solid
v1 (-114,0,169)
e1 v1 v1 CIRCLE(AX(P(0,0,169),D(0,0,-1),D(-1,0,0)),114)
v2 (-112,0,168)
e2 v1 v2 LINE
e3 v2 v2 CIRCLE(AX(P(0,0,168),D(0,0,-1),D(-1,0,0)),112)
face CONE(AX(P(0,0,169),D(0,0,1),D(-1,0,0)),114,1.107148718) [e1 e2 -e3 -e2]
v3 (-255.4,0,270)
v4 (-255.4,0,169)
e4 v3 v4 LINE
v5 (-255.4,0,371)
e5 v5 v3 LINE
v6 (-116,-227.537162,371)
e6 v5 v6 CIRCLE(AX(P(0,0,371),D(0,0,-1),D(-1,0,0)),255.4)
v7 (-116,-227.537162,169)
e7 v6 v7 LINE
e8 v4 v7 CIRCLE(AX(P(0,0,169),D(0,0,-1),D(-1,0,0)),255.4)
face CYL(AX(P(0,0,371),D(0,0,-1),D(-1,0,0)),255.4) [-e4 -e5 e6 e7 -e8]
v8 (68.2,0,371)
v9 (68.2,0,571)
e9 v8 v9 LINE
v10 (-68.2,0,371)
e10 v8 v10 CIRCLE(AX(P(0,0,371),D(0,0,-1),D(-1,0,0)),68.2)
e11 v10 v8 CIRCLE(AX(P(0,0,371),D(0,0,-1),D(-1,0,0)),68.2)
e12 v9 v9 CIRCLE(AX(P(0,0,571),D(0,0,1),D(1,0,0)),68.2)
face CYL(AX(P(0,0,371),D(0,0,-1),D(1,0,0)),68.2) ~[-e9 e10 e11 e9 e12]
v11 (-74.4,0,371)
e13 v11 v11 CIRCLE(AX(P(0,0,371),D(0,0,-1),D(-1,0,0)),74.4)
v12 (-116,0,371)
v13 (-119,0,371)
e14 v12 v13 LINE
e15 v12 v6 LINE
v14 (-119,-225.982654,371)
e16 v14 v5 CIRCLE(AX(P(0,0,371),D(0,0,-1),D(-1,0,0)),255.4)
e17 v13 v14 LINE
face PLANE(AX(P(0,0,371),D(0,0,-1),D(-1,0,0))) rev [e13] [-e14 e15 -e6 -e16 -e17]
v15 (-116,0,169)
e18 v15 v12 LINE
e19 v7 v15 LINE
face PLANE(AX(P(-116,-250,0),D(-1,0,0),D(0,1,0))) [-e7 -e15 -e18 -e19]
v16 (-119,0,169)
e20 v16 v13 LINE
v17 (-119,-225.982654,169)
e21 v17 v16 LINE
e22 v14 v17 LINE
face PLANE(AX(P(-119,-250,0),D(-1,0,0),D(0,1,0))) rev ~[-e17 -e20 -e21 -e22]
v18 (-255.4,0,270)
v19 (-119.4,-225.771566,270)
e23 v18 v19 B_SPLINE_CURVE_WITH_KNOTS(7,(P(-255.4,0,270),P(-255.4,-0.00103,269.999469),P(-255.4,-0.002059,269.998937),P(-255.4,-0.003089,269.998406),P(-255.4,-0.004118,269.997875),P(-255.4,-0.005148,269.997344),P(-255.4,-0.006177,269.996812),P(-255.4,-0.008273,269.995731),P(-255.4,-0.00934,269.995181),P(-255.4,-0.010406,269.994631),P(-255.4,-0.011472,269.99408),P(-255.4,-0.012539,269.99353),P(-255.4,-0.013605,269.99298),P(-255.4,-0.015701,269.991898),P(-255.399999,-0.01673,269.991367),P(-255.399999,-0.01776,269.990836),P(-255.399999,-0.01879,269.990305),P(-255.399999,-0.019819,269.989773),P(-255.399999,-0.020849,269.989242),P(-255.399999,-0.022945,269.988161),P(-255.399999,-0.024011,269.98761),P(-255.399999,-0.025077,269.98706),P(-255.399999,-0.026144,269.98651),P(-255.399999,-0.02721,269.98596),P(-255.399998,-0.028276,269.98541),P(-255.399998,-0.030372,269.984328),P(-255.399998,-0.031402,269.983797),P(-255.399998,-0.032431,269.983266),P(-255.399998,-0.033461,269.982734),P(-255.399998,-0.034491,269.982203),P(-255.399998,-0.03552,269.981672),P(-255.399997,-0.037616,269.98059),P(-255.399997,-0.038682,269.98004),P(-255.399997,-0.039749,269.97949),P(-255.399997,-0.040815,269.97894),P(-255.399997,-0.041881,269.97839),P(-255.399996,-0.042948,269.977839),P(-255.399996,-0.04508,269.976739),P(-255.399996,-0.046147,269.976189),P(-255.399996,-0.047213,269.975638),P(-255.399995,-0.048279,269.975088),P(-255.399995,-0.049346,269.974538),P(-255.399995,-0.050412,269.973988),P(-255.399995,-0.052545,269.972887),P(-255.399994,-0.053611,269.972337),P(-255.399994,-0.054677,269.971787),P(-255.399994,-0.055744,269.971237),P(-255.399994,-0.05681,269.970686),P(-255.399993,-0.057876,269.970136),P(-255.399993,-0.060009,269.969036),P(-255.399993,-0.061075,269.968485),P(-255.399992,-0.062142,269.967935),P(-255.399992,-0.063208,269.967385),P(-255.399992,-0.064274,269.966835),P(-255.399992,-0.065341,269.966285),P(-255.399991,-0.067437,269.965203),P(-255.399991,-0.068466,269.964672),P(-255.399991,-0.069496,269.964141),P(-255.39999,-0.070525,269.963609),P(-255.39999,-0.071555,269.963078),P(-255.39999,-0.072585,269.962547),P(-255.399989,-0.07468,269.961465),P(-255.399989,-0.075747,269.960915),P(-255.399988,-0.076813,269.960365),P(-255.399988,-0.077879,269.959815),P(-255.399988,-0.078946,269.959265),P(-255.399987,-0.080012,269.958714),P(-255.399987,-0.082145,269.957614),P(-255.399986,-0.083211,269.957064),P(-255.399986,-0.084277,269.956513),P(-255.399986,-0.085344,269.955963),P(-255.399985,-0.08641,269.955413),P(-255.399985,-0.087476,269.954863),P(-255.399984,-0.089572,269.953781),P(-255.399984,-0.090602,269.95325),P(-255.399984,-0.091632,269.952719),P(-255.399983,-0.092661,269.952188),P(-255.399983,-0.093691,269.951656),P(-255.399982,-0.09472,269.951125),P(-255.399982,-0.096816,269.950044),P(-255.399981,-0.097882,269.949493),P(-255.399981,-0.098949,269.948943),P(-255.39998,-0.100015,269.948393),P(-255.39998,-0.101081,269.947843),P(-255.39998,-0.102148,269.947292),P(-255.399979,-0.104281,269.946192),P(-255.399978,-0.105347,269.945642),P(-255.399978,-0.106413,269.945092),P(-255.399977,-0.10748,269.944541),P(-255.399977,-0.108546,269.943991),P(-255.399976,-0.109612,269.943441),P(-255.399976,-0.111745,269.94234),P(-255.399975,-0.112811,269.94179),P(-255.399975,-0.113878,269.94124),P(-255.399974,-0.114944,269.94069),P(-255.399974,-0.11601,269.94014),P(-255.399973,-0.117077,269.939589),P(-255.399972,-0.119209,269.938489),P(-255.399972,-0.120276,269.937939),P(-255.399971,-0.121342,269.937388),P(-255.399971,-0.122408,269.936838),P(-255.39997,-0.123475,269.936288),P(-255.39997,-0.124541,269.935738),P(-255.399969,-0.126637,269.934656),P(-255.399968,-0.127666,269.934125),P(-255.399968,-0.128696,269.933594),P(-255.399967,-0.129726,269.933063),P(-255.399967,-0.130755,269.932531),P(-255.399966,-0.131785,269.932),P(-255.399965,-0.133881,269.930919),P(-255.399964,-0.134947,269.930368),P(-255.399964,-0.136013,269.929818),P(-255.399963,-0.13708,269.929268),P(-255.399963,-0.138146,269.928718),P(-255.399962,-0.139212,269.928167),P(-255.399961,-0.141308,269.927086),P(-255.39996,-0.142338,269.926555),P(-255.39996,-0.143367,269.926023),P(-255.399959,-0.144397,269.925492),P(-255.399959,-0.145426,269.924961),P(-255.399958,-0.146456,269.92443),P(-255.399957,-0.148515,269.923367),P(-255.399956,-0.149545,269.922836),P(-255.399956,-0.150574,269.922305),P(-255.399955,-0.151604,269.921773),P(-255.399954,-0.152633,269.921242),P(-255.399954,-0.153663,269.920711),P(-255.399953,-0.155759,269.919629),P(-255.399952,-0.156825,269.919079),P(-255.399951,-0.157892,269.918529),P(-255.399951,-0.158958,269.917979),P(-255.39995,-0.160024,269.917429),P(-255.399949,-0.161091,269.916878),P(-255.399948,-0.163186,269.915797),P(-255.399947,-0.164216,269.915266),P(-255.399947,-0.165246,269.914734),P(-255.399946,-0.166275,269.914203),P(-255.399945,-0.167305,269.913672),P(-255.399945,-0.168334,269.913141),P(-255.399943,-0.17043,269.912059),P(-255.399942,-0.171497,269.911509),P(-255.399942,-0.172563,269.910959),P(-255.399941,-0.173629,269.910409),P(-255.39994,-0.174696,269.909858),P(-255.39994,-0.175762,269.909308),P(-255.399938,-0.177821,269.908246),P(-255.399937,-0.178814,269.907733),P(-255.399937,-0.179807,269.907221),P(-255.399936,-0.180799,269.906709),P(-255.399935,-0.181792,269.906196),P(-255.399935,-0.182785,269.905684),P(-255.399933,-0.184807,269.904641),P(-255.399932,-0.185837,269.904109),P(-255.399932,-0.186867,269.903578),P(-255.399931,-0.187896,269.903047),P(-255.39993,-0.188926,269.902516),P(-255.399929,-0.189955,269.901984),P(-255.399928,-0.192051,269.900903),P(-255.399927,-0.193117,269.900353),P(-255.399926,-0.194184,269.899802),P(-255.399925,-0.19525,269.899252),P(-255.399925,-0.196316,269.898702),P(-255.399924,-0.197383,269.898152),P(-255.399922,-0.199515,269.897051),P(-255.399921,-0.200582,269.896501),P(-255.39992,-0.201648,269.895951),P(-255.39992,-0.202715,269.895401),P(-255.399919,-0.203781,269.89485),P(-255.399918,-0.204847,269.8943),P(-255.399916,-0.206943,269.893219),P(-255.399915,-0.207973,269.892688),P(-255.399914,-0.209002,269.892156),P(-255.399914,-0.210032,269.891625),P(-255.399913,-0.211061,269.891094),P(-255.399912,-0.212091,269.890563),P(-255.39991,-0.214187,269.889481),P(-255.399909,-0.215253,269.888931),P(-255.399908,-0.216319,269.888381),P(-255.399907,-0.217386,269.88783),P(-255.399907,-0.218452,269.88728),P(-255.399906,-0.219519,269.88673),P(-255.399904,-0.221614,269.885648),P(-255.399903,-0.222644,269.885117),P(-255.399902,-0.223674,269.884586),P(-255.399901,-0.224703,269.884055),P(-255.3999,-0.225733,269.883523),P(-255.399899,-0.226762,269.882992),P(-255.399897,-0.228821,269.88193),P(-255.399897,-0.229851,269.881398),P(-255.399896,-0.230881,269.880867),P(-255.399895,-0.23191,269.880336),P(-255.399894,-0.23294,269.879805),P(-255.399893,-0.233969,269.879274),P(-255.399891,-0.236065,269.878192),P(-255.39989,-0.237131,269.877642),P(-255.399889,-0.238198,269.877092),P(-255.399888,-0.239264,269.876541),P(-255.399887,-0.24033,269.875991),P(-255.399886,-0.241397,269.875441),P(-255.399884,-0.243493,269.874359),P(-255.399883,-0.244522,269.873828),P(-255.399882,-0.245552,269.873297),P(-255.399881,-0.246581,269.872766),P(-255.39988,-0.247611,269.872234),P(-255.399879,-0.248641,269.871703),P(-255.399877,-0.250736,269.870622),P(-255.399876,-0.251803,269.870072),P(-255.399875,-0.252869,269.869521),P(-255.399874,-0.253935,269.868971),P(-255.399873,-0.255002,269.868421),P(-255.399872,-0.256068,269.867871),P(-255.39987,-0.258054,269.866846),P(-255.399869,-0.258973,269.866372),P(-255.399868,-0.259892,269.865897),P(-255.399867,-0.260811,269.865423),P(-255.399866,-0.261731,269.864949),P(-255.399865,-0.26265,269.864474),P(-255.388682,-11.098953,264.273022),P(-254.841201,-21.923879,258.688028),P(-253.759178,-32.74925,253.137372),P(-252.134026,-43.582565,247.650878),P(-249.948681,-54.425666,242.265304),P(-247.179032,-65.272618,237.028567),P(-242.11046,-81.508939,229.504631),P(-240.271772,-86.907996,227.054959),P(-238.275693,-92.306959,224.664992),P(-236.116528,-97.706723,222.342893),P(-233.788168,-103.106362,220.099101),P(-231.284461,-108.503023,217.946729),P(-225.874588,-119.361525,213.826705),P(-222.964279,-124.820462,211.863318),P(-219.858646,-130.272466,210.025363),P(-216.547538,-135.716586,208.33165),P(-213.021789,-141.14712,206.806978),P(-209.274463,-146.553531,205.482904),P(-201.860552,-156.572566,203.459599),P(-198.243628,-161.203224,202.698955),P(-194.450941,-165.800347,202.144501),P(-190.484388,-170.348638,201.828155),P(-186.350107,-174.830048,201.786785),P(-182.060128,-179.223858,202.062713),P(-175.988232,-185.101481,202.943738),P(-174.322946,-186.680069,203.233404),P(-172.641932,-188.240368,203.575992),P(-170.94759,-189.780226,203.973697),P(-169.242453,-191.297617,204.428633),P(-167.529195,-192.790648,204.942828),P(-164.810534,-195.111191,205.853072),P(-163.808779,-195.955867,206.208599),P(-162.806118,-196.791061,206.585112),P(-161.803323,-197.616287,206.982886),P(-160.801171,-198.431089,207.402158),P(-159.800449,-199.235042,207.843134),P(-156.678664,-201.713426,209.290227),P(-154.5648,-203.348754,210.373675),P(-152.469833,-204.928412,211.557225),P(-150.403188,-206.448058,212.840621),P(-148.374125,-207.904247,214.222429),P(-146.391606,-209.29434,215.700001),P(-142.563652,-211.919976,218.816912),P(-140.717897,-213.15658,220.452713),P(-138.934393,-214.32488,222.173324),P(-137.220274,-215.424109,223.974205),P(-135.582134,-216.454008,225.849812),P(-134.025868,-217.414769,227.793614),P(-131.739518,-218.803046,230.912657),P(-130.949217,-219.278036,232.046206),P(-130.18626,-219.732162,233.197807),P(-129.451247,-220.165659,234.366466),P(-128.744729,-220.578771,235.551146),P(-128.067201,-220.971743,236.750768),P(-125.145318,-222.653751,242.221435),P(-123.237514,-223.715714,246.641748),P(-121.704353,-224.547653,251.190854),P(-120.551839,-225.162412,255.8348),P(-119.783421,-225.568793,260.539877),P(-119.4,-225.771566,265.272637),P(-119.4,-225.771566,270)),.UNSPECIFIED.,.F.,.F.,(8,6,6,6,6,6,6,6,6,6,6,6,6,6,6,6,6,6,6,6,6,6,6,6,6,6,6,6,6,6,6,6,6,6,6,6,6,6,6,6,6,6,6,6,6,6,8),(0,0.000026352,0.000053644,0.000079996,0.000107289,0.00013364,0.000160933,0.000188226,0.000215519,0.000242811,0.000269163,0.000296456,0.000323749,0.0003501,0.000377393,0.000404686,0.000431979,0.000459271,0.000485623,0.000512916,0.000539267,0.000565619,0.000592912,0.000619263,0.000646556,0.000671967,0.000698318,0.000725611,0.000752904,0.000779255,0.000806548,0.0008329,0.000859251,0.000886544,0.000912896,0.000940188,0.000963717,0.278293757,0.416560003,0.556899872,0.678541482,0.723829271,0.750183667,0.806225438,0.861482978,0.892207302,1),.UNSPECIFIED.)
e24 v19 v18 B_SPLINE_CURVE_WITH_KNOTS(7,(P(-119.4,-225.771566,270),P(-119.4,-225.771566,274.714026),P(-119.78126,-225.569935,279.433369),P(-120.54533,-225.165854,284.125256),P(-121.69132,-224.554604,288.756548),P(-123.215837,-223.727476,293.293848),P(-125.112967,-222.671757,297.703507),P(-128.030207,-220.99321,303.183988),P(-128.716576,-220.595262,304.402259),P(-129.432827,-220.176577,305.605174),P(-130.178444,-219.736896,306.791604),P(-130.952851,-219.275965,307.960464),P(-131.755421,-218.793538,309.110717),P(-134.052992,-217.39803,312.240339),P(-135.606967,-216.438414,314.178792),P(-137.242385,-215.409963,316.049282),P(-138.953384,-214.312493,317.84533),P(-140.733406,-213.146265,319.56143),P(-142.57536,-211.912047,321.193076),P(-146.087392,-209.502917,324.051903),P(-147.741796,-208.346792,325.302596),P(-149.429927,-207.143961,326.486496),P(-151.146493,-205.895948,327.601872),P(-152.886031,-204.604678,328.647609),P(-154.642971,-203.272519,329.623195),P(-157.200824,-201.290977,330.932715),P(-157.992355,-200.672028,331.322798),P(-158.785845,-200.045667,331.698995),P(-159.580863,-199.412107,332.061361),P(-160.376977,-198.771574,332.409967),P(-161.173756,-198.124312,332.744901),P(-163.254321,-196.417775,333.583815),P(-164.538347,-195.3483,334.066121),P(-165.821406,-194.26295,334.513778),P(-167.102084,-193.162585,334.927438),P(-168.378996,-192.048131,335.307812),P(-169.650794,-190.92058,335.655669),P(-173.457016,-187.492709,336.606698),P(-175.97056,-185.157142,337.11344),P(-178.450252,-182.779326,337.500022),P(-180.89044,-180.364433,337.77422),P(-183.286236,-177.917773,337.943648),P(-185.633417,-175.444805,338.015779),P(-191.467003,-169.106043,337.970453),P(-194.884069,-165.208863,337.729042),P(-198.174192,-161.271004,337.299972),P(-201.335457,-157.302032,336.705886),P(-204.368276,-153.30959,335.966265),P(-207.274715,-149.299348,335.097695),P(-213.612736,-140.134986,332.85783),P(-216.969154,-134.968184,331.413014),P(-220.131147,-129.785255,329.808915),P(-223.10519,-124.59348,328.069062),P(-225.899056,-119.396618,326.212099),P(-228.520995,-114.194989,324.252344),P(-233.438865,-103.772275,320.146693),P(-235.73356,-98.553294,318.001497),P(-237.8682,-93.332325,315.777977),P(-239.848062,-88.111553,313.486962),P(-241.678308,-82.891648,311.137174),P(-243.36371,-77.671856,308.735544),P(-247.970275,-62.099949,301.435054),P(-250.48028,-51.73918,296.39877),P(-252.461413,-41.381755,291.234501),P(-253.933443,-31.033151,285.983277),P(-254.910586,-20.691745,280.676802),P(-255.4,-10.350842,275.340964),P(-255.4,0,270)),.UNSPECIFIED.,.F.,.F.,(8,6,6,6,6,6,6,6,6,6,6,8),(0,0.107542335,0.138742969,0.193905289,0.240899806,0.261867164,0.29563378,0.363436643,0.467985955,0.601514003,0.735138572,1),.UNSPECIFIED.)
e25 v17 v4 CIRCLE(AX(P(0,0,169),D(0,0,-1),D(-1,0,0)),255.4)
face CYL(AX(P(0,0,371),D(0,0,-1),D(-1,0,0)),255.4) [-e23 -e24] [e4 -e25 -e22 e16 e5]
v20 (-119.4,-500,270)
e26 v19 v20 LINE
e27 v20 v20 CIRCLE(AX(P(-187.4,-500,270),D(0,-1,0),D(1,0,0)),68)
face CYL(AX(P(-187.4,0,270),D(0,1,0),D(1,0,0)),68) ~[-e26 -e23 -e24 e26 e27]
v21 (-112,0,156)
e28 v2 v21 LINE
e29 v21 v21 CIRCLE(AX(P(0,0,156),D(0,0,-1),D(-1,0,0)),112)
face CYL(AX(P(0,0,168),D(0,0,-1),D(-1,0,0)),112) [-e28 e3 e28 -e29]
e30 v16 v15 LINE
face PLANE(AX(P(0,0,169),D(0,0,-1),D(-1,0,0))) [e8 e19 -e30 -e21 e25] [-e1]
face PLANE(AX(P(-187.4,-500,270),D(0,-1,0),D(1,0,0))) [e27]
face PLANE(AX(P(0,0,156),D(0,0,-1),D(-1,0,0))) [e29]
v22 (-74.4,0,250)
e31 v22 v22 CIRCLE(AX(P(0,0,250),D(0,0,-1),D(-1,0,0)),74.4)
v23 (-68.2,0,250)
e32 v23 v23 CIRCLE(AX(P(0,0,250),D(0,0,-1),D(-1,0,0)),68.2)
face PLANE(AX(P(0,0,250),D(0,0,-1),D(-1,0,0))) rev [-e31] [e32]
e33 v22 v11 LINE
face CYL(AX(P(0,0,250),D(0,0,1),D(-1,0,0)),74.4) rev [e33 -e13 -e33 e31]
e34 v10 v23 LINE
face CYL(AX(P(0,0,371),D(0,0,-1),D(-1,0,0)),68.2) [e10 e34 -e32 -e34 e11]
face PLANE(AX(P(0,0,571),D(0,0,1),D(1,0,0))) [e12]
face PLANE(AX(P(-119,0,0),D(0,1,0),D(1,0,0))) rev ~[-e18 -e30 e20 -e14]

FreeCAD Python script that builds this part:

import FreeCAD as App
import Part
import Sketcher

V = App.Vector
Q = App.Units.Quantity

doc = App.newDocument("Part")
body = doc.addObject("PartDesign::Body", "Body")

sketch1 = body.newObject("Sketcher::SketchObject", "Sketch")
sketch1.AttachmentSupport = (doc.getObject("XZ_Plane"), [""])
sketch1.MapMode = "FlatFace"
sketch1.addGeometry(Part.LineSegment(V(-255.4, 169, 0), V(-114, 169, 0)), False)
sketch1.addGeometry(Part.LineSegment(V(-114, 169, 0), V(-112, 168, 0)), False)
sketch1.addGeometry(Part.LineSegment(V(-112, 168, 0), V(-112, 156, 0)), False)
sketch1.addGeometry(Part.LineSegment(V(-112, 156, 0), V(0, 156, 0)), False)
sketch1.addGeometry(Part.LineSegment(V(0, 156, 0), V(0, 371, 0)), False)
sketch1.addGeometry(Part.LineSegment(V(0, 371, 0), V(-68.2, 371, 0)), False)
sketch1.addGeometry(Part.LineSegment(V(-68.2, 371, 0), V(-68.2, 250, 0)), False)
sketch1.addGeometry(Part.LineSegment(V(-68.2, 250, 0), V(-74.4, 250, 0)), False)
sketch1.addGeometry(Part.LineSegment(V(-74.4, 250, 0), V(-74.4, 371, 0)), False)
sketch1.addGeometry(Part.LineSegment(V(-74.4, 371, 0), V(-255.4, 371, 0)), False)
sketch1.addGeometry(Part.LineSegment(V(-255.4, 371, 0), V(-255.4, 169, 0)), False)
sketch1.addConstraint(Sketcher.Constraint("Coincident", 0, 2, 1, 1))
sketch1.addConstraint(Sketcher.Constraint("Coincident", 1, 2, 2, 1))
sketch1.addConstraint(Sketcher.Constraint("Coincident", 2, 2, 3, 1))
sketch1.addConstraint(Sketcher.Constraint("Coincident", 3, 2, 4, 1))
sketch1.addConstraint(Sketcher.Constraint("Coincident", 4, 2, 5, 1))
sketch1.addConstraint(Sketcher.Constraint("Coincident", 5, 2, 6, 1))
sketch1.addConstraint(Sketcher.Constraint("Coincident", 6, 2, 7, 1))
sketch1.addConstraint(Sketcher.Constraint("Coincident", 7, 2, 8, 1))
sketch1.addConstraint(Sketcher.Constraint("Coincident", 8, 2, 9, 1))
sketch1.addConstraint(Sketcher.Constraint("Coincident", 9, 2, 10, 1))
sketch1.addConstraint(Sketcher.Constraint("Coincident", 10, 2, 0, 1))
sketch1.addConstraint(Sketcher.Constraint("Horizontal", 0))
sketch1.addConstraint(Sketcher.Constraint("Vertical", 2))
sketch1.addConstraint(Sketcher.Constraint("Horizontal", 3))
sketch1.addConstraint(Sketcher.Constraint("Vertical", 4))
sketch1.addConstraint(Sketcher.Constraint("Horizontal", 5))
sketch1.addConstraint(Sketcher.Constraint("Vertical", 6))
sketch1.addConstraint(Sketcher.Constraint("Horizontal", 7))
sketch1.addConstraint(Sketcher.Constraint("Vertical", 8))
sketch1.addConstraint(Sketcher.Constraint("Horizontal", 9))
sketch1.addConstraint(Sketcher.Constraint("Vertical", 10))
sketch1.addConstraint(Sketcher.Constraint("PointOnObject", 3, 2, -2))
sketch1.addConstraint(Sketcher.Constraint("Horizontal", 5, 2, 8, 2))
sketch1.addConstraint(Sketcher.Constraint("DistanceX", 3, 1, 3, 2, Q("112 mm")))
sketch1.addConstraint(Sketcher.Constraint("DistanceX", 9, 2, 9, 1, Q("181 mm")))
sketch1.addConstraint(Sketcher.Constraint("DistanceY", 2, 2, 2, 1, Q("12 mm")))
sketch1.addConstraint(Sketcher.Constraint("DistanceY", 4, 1, 4, 2, Q("215 mm")))
sketch1.addConstraint(Sketcher.Constraint("DistanceY", 6, 2, 6, 1, Q("121 mm")))
sketch1.addConstraint(Sketcher.Constraint("DistanceY", 10, 2, 10, 1, Q("202 mm")))
sketch1.addConstraint(Sketcher.Constraint("DistanceX", 0, 1, 0, 2, Q("141.4 mm")))
sketch1.addConstraint(Sketcher.Constraint("DistanceX", 5, 2, 5, 1, Q("68.2 mm")))
sketch1.addConstraint(Sketcher.Constraint("DistanceX", 7, 2, 7, 1, Q("6.2 mm")))
sketch1.addConstraint(Sketcher.Constraint("DistanceY", -1, 1, 0, 2, Q("169 mm")))
revolution = body.newObject("PartDesign::Revolution", "Revolution")
revolution.Profile = sketch1
revolution.ReferenceAxis = (sketch1, ["V_Axis"])
revolution.Angle = 360

sketch2 = body.newObject("Sketcher::SketchObject", "Sketch001")
sketch2.AttachmentSupport = (doc.getObject("XZ_Plane"), [""])
sketch2.MapMode = "FlatFace"
sketch2.addGeometry(Part.Circle(V(-187, 270, 0), V(0, 0, 1), 68), False)
sketch2.addConstraint(Sketcher.Constraint("Diameter", 0, Q("136 mm")))
sketch2.addConstraint(Sketcher.Constraint("DistanceY", -1, 1, 0, 3, Q("270 mm")))
sketch2.addConstraint(Sketcher.Constraint("DistanceX", 0, 3, -1, 1, Q("187.4 mm")))
pad1 = body.newObject("PartDesign::Pad", "Pad")
pad1.Profile = sketch2
pad1.Length = 500

sketch3 = body.newObject("Sketcher::SketchObject", "Sketch002")
sketch3.AttachmentSupport = (doc.getObject("XY_Plane"), [""])
sketch3.MapMode = "FlatFace"
sketch3.AttachmentOffset = App.Placement(V(0, 0, 371), App.Rotation())
sketch3.addGeometry(Part.Circle(V(0, 0, 0), V(0, 0, 1), 68), False)
sketch3.addConstraint(Sketcher.Constraint("Coincident", 0, 3, -1, 1))
sketch3.addConstraint(Sketcher.Constraint("Diameter", 0, Q("136.4 mm")))
pad2 = body.newObject("PartDesign::Pad", "Pad001")
pad2.Profile = sketch3
pad2.Length = 200

sketch4 = body.newObject("Sketcher::SketchObject", "Sketch003")
sketch4.AttachmentSupport = (doc.getObject("XY_Plane"), [""])
sketch4.MapMode = "FlatFace"
sketch4.addGeometry(Part.LineSegment(V(-119, 0, 0), V(-119, -250, 0)), False)
sketch4.addGeometry(Part.LineSegment(V(-119, -250, 0), V(-116, -250, 0)), False)
sketch4.addGeometry(Part.LineSegment(V(-116, -250, 0), V(-116, 0, 0)), False)
sketch4.addGeometry(Part.LineSegment(V(-116, 0, 0), V(-119, 0, 0)), False)
sketch4.addConstraint(Sketcher.Constraint("Coincident", 0, 2, 1, 1))
sketch4.addConstraint(Sketcher.Constraint("Coincident", 1, 2, 2, 1))
sketch4.addConstraint(Sketcher.Constraint("Coincident", 2, 2, 3, 1))
sketch4.addConstraint(Sketcher.Constraint("Coincident", 3, 2, 0, 1))
sketch4.addConstraint(Sketcher.Constraint("Vertical", 0))
sketch4.addConstraint(Sketcher.Constraint("Horizontal", 1))
sketch4.addConstraint(Sketcher.Constraint("Vertical", 2))
sketch4.addConstraint(Sketcher.Constraint("Horizontal", 3))
sketch4.addConstraint(Sketcher.Constraint("PointOnObject", 2, 2, -1))
sketch4.addConstraint(Sketcher.Constraint("DistanceX", 1, 1, 1, 2, Q("3 mm")))
sketch4.addConstraint(Sketcher.Constraint("DistanceY", 0, 2, 0, 1, Q("250 mm")))
sketch4.addConstraint(Sketcher.Constraint("DistanceX", 0, 2, -1, 1, Q("119 mm")))
pocket1 = body.newObject("PartDesign::Pocket", "Pocket")
pocket1.Profile = sketch4
pocket1.Length = 375
pocket1.Reversed = True

doc.recompute()
